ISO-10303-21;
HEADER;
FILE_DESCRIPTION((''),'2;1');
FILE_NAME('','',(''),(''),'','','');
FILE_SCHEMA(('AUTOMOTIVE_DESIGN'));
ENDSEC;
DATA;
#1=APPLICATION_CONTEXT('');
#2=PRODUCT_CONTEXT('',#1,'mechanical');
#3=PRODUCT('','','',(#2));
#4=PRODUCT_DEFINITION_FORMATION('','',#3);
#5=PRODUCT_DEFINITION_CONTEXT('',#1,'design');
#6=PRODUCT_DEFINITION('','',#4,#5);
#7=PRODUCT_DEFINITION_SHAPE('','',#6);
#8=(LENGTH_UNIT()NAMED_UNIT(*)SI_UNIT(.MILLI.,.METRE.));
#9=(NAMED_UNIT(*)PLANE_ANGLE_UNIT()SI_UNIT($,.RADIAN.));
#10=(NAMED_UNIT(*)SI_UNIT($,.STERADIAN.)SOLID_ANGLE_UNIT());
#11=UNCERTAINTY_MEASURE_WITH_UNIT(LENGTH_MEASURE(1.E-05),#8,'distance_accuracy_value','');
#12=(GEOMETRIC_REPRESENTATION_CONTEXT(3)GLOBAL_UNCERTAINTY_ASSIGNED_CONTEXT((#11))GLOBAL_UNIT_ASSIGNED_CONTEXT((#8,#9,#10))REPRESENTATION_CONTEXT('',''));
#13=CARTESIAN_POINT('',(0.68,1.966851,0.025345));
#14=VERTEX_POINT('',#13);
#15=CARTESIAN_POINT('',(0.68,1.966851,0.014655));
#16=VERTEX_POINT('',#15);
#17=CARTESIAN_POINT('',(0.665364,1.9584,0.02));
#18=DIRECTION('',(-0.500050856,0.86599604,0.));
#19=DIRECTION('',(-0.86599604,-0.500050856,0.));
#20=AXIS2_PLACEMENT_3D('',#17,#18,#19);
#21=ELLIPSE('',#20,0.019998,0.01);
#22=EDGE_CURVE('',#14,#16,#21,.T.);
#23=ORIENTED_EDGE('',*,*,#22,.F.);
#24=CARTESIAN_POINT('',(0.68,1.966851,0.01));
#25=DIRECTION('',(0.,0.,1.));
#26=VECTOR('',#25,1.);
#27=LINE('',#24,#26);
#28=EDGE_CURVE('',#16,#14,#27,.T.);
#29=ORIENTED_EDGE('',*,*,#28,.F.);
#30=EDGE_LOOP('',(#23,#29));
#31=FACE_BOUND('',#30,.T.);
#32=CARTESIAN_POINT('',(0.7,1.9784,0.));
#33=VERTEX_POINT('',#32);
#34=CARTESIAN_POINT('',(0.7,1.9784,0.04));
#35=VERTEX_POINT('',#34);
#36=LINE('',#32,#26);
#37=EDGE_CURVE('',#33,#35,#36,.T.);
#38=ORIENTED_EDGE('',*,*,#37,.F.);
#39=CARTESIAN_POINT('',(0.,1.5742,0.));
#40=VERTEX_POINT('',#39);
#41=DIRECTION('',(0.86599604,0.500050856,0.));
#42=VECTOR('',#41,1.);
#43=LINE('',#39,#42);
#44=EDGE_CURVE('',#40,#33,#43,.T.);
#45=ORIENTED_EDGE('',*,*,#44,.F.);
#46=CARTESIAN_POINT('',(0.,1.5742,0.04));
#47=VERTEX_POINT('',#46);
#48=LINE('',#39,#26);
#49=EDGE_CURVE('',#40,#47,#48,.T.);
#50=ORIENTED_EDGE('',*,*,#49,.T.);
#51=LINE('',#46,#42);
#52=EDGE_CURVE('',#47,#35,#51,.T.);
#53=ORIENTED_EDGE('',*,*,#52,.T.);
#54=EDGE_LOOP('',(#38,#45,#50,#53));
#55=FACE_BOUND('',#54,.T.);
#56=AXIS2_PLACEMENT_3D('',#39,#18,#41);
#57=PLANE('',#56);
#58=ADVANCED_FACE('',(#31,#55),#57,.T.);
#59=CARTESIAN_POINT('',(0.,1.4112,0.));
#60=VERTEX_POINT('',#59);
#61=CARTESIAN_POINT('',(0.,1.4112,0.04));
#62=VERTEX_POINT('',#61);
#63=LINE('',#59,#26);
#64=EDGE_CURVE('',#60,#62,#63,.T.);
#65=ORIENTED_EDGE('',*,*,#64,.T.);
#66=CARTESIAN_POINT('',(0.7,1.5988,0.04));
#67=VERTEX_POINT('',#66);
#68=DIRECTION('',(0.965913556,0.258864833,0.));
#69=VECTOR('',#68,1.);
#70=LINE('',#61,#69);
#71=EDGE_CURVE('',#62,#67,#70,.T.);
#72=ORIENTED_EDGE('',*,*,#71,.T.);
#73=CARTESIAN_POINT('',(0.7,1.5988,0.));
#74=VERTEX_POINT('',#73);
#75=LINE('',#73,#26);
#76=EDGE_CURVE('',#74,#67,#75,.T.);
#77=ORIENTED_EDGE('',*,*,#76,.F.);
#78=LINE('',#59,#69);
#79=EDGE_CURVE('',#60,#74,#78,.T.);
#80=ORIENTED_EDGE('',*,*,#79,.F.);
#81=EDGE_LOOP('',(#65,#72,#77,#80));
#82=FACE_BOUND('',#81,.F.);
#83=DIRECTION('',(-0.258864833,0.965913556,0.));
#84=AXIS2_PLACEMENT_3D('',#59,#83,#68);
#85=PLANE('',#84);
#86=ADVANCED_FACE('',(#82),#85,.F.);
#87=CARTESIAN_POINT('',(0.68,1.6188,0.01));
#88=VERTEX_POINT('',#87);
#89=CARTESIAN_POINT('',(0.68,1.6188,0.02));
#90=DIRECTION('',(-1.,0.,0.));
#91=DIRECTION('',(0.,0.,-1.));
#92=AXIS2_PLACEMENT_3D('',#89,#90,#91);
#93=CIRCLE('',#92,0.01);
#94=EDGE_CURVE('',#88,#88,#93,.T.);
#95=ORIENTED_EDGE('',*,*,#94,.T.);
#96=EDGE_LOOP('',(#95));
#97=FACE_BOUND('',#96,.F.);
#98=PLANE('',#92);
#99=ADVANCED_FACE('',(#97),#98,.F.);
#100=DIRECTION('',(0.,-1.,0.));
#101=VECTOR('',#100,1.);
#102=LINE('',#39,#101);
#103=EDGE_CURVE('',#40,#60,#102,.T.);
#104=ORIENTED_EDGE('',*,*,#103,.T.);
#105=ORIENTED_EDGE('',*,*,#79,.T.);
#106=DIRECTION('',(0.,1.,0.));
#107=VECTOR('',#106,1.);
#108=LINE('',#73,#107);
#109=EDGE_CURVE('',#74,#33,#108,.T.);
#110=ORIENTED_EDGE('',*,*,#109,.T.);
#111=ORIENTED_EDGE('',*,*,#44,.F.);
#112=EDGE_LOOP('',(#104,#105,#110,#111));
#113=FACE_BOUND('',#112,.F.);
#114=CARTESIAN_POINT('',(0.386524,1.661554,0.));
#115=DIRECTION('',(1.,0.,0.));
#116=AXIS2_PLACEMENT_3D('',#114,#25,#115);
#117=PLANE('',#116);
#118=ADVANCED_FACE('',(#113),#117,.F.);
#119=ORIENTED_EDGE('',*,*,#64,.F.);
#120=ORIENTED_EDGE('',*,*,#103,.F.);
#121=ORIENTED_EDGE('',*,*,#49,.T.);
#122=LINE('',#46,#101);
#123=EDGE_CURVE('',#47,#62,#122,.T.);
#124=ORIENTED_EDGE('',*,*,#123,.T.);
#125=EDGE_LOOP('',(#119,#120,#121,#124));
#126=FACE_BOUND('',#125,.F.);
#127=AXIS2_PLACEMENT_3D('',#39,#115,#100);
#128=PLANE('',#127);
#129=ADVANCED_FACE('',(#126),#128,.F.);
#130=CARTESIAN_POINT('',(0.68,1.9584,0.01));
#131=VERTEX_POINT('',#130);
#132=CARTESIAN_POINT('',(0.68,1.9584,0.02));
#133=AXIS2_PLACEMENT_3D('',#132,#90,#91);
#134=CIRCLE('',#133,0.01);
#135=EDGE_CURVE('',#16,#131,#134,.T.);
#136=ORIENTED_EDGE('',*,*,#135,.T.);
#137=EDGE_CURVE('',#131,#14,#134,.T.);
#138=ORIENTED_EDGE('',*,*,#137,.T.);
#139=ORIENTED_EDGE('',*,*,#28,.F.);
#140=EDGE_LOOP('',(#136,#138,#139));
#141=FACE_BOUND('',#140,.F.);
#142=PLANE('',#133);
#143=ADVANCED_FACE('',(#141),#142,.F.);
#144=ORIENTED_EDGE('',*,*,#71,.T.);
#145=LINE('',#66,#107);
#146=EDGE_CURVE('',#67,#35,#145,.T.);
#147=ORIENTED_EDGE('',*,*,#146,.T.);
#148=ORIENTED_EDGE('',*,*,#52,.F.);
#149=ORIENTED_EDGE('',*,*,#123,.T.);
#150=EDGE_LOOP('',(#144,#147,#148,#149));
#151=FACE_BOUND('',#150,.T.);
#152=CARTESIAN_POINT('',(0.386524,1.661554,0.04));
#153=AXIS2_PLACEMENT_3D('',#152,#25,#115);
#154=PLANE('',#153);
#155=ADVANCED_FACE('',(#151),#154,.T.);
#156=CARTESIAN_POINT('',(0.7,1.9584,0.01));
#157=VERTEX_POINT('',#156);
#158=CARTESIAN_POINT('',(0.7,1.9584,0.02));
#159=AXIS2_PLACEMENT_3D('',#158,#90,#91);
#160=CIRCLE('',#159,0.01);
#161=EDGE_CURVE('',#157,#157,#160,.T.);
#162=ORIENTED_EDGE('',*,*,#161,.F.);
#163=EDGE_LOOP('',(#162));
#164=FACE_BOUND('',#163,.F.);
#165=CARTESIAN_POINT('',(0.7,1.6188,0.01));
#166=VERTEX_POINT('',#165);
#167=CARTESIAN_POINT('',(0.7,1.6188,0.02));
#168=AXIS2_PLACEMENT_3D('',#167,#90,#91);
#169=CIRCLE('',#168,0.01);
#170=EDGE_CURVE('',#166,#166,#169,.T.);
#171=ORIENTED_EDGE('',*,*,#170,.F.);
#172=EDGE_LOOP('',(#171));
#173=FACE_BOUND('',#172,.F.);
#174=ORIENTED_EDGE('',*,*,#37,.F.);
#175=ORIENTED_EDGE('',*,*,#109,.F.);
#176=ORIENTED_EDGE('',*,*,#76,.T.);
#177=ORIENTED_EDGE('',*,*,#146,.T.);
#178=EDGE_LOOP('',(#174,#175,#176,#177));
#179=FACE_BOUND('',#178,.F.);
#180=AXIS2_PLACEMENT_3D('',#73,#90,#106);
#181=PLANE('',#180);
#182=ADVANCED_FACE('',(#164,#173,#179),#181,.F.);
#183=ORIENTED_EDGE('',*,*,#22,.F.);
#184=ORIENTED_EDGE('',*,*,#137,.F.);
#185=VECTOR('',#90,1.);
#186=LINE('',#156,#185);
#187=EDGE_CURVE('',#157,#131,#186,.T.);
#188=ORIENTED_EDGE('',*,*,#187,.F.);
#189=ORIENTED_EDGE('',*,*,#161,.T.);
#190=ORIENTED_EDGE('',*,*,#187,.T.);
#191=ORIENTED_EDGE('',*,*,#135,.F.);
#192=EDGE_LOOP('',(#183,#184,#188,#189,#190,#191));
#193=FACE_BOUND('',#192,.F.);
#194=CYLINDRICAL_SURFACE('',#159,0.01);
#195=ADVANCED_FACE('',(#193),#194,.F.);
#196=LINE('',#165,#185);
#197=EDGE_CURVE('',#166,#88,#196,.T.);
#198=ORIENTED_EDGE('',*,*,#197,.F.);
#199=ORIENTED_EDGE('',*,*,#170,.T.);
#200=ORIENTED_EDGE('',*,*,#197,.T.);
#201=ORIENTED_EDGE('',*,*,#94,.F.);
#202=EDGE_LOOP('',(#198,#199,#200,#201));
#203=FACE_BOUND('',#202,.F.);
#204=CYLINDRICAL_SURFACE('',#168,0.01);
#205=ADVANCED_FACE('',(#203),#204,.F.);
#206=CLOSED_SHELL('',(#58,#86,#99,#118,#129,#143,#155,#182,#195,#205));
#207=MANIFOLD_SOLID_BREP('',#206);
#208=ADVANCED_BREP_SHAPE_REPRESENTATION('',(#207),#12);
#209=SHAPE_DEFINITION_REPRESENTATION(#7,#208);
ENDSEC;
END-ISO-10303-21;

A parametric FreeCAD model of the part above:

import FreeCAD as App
import Part
import Sketcher

V = App.Vector

doc = App.newDocument("Part")
body = doc.addObject("PartDesign::Body", "Body")

sketch1 = body.newObject("Sketcher::SketchObject", "Sketch")
sketch1.AttachmentSupport = (doc.getObject("XY_Plane"), [""])
sketch1.MapMode = "FlatFace"
sketch1.addGeometry(Part.LineSegment(V(0.7, 1.98, 0), V(0, 1.57, 0)), False)
sketch1.addGeometry(Part.LineSegment(V(0, 1.57, 0), V(0, 1.41, 0)), False)
sketch1.addGeometry(Part.LineSegment(V(0, 1.41, 0), V(0.7, 1.6, 0)), False)
sketch1.addGeometry(Part.LineSegment(V(0.7, 1.6, 0), V(0.7, 1.98, 0)), False)
sketch1.addConstraint(Sketcher.Constraint("Coincident", 0, 2, 1, 1))
sketch1.addConstraint(Sketcher.Constraint("Coincident", 1, 2, 2, 1))
sketch1.addConstraint(Sketcher.Constraint("Coincident", 2, 2, 3, 1))
sketch1.addConstraint(Sketcher.Constraint("Coincident", 3, 2, 0, 1))
sketch1.addConstraint(Sketcher.Constraint("Vertical", 1))
sketch1.addConstraint(Sketcher.Constraint("Vertical", 3))
sketch1.addConstraint(Sketcher.Constraint("PointOnObject", 0, 2, -2))
sketch1.addConstraint(Sketcher.Constraint("DistanceX", -1, 1, 2, 2, 0.7))
sketch1.addConstraint(Sketcher.Constraint("DistanceY", 1, 2, 1, 1, 0.163))
sketch1.addConstraint(Sketcher.Constraint("DistanceY", 3, 1, 3, 2, 0.3796))
sketch1.addConstraint(Sketcher.Constraint("Distance", 0, 0.8083))
sketch1.addConstraint(Sketcher.Constraint("DistanceY", -1, 1, 0, 2, 1.5742))
pad1 = body.newObject("PartDesign::Pad", "Pad")
pad1.Profile = sketch1
pad1.Length = 0.04

sketch2 = body.newObject("Sketcher::SketchObject", "Sketch001")
sketch2.AttachmentSupport = (doc.getObject("YZ_Plane"), [""])
sketch2.MapMode = "FlatFace"
sketch2.AttachmentOffset = App.Placement(V(0, 0, 0.7), App.Rotation())
sketch2.addGeometry(Part.Circle(V(1.619, 0.02, 0), V(0, 0, 1), 0.01), False)
sketch2.addConstraint(Sketcher.Constraint("Diameter", 0, 0.02))
sketch2.addConstraint(Sketcher.Constraint("DistanceY", -1, 1, 0, 3, 0.02))
sketch2.addConstraint(Sketcher.Constraint("DistanceX", -1, 1, 0, 3, 1.6188))
doc.recompute()
hole = body.newObject("PartDesign::Hole", "Hole")
hole.Profile = sketch2
hole.ThreadType = "None"
hole.Diameter = 0.02
hole.DepthType = "Dimension"
hole.Depth = 0.02
hole.DrillPoint = "Flat"

sketch3 = body.newObject("Sketcher::SketchObject", "Sketch002")
sketch3.AttachmentSupport = (doc.getObject("YZ_Plane"), [""])
sketch3.MapMode = "FlatFace"
sketch3.AttachmentOffset = App.Placement(V(0, 0, 0.7), App.Rotation())
sketch3.addGeometry(Part.Circle(V(1.958, 0.02, 0), V(0, 0, 1), 0.01), False)
sketch3.addConstraint(Sketcher.Constraint("Diameter", 0, 0.02))
sketch3.addConstraint(Sketcher.Constraint("DistanceY", -1, 1, 0, 3, 0.02))
sketch3.addConstraint(Sketcher.Constraint("DistanceX", -1, 1, 0, 3, 1.9584))
doc.recompute()
hole2 = body.newObject("PartDesign::Hole", "Hole001")
hole2.Profile = sketch3
hole2.ThreadType = "None"
hole2.Diameter = 0.02
hole2.DepthType = "Dimension"
hole2.Depth = 0.02
hole2.DrillPoint = "Flat"

doc.recompute()
